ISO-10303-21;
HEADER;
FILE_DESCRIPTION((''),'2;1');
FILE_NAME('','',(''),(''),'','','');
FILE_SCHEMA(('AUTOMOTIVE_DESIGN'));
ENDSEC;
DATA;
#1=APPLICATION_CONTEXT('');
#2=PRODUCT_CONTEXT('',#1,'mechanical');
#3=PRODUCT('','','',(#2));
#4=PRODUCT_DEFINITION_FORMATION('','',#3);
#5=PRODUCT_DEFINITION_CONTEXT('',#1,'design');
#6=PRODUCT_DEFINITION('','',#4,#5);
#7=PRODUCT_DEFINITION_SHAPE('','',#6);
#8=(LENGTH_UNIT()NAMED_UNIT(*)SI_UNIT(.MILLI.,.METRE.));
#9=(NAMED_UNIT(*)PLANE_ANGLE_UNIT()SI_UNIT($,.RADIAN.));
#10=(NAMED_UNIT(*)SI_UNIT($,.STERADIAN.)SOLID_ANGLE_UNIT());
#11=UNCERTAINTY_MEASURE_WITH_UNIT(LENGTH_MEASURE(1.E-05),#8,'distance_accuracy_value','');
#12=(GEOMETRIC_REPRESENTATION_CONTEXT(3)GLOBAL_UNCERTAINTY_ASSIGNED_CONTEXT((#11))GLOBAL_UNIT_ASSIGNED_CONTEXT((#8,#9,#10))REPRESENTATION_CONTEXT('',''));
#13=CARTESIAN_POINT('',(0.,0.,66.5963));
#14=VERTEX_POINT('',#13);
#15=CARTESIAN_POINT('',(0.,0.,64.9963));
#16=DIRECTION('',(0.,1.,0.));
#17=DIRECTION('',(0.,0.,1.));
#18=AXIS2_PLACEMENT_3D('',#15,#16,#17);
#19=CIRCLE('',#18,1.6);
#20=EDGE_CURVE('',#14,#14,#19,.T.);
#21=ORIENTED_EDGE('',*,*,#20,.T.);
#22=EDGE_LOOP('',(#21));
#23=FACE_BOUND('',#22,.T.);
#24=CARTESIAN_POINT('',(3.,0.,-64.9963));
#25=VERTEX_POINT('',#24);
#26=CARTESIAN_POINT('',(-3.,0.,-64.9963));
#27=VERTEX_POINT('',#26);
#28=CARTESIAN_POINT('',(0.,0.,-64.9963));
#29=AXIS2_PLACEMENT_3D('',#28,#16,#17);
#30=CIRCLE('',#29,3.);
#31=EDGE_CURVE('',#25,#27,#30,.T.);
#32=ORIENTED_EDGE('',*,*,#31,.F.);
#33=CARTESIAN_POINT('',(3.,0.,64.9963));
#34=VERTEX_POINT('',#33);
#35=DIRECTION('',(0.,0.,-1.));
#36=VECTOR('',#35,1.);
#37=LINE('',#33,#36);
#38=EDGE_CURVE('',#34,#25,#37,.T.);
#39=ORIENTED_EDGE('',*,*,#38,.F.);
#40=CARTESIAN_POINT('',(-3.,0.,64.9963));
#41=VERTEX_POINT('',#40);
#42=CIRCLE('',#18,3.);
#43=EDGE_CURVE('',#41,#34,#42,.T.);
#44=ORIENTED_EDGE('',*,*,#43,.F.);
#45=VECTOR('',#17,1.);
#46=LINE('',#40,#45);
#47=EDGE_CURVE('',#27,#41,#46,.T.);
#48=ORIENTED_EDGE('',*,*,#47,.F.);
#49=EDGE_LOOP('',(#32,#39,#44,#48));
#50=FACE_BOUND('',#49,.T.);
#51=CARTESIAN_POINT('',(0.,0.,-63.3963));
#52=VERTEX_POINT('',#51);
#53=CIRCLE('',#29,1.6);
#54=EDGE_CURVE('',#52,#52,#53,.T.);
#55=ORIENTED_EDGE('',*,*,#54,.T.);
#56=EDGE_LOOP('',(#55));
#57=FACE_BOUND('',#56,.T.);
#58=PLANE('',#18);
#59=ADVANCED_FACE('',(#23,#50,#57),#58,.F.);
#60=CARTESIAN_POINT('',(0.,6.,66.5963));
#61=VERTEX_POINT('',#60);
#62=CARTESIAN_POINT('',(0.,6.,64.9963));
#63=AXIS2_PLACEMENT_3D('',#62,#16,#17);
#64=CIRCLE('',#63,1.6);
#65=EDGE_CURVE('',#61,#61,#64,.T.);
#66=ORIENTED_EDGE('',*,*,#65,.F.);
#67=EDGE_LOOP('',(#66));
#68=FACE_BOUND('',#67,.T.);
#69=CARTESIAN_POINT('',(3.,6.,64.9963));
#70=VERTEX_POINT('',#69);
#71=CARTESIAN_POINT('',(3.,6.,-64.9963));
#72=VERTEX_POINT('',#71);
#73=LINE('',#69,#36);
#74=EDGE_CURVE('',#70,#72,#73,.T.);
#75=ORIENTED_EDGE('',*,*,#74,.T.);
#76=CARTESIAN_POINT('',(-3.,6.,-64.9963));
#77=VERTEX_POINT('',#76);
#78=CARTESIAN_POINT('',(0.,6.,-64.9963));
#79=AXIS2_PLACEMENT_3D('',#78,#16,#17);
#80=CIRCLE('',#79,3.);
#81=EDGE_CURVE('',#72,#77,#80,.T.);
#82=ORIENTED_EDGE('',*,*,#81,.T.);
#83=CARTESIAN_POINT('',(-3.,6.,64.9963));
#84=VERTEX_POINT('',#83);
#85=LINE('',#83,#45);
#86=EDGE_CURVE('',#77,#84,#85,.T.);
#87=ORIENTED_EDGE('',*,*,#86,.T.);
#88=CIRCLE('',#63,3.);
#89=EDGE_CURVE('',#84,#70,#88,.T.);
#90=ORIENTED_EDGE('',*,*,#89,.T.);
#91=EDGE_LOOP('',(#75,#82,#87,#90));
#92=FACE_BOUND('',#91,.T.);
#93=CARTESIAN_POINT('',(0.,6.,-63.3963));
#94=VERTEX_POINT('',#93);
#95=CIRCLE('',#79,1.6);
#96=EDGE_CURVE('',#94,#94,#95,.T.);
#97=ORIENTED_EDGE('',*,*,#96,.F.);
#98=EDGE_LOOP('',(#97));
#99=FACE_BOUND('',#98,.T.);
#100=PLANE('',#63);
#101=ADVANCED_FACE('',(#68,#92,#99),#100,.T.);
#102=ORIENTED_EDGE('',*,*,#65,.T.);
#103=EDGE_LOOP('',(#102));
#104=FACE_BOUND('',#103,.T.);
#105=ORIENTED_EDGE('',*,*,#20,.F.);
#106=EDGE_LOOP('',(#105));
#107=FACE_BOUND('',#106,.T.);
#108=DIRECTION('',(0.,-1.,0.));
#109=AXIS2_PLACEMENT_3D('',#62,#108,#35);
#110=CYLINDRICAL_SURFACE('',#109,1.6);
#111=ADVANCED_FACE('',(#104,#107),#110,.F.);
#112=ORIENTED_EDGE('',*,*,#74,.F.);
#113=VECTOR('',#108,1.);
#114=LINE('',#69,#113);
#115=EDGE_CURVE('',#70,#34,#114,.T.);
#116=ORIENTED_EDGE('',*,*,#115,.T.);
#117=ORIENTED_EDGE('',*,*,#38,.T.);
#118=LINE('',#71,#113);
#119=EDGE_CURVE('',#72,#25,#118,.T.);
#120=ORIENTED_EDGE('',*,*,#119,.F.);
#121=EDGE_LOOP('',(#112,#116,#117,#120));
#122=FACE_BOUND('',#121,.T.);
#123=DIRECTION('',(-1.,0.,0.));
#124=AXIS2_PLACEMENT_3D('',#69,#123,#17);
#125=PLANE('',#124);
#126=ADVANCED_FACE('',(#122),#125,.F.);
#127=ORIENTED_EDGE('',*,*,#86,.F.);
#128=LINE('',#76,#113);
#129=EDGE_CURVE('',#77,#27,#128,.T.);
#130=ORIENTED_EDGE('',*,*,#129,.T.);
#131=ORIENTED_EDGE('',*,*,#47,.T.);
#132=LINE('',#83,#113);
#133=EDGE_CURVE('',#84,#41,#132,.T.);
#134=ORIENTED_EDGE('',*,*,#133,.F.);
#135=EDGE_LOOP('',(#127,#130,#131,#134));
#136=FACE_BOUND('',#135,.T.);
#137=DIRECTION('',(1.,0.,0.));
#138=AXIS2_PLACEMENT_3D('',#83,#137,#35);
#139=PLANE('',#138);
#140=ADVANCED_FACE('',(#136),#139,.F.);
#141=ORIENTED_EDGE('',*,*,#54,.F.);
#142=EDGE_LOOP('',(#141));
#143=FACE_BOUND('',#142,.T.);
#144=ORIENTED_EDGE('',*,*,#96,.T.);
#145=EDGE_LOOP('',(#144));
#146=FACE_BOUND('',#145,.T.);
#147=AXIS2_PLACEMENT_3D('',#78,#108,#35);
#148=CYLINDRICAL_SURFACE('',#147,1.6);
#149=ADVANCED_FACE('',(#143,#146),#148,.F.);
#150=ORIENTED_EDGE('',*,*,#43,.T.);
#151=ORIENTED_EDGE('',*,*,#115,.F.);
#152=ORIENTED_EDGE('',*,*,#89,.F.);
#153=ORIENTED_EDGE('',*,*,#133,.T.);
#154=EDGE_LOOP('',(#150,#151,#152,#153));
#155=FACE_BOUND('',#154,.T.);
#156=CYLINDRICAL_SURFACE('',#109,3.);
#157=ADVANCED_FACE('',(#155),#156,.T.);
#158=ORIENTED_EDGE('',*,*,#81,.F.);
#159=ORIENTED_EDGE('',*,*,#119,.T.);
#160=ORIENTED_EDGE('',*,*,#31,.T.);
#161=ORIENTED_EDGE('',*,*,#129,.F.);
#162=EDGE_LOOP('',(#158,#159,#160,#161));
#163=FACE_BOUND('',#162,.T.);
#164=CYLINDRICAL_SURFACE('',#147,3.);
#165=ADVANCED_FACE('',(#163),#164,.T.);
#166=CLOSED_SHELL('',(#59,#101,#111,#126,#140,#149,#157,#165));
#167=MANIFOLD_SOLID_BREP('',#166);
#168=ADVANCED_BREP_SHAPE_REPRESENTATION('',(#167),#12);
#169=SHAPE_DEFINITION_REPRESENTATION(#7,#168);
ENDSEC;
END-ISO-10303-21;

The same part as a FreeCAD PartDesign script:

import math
import FreeCAD as App
import Part
import Sketcher
Q = App.Units.Quantity

doc = App.newDocument("Part")
body = doc.addObject("PartDesign::Body", "Body")

# Sketch on XZ plane
sketch1 = body.newObject("Sketcher::SketchObject", "Sketch")
sketch1.AttachmentSupport = (doc.getObject("XZ_Plane"), [""])
sketch1.MapMode = "FlatFace"
sketch1.addGeometry(Part.LineSegment(App.Vector(-3, -65, 0), App.Vector(-3, 65, 0)), False)
sketch1.addGeometry(Part.ArcOfCircle(Part.Circle(App.Vector(0, 65, 0), App.Vector(0, 0, 1), 3), math.radians(0), math.radians(180)), False)
sketch1.addGeometry(Part.LineSegment(App.Vector(3, 65, 0), App.Vector(3, -65, 0)), False)
sketch1.addGeometry(Part.ArcOfCircle(Part.Circle(App.Vector(0, -65, 0), App.Vector(0, 0, 1), 3), math.radians(180), math.radians(360)), False)
sketch1.addGeometry(Part.Circle(App.Vector(0, 65, 0), App.Vector(0, 0, 1), 1.6), False)
sketch1.addGeometry(Part.Circle(App.Vector(0, -65, 0), App.Vector(0, 0, 1), 1.6), False)
sketch1.addConstraint(Sketcher.Constraint("Tangent", 0, 2, 1, 2))
sketch1.addConstraint(Sketcher.Constraint("Tangent", 1, 1, 2, 1))
sketch1.addConstraint(Sketcher.Constraint("Tangent", 2, 2, 3, 2))
sketch1.addConstraint(Sketcher.Constraint("Tangent", 3, 1, 0, 1))
sketch1.addConstraint(Sketcher.Constraint("Vertical", 0))
sketch1.addConstraint(Sketcher.Constraint("Vertical", 2))
sketch1.addConstraint(Sketcher.Constraint("Coincident", 4, 3, 1, 3))
sketch1.addConstraint(Sketcher.Constraint("Coincident", 5, 3, 3, 3))
sketch1.addConstraint(Sketcher.Constraint("Equal", 4, 5))
sketch1.addConstraint(Sketcher.Constraint("Symmetric", 1, 3, 3, 3, -1, 1))
sketch1.addConstraint(Sketcher.Constraint("Radius", 1, Q("3 mm")))
sketch1.addConstraint(Sketcher.Constraint("Diameter", 4, Q("3.2 mm")))
sketch1.addConstraint(Sketcher.Constraint("DistanceY", 0, 1, 0, 2, Q("129.992601 mm")))
pad1 = body.newObject("PartDesign::Pad", "Pad")
pad1.Profile = sketch1
pad1.Length = 6
pad1.Reversed = True

doc.recompute()
